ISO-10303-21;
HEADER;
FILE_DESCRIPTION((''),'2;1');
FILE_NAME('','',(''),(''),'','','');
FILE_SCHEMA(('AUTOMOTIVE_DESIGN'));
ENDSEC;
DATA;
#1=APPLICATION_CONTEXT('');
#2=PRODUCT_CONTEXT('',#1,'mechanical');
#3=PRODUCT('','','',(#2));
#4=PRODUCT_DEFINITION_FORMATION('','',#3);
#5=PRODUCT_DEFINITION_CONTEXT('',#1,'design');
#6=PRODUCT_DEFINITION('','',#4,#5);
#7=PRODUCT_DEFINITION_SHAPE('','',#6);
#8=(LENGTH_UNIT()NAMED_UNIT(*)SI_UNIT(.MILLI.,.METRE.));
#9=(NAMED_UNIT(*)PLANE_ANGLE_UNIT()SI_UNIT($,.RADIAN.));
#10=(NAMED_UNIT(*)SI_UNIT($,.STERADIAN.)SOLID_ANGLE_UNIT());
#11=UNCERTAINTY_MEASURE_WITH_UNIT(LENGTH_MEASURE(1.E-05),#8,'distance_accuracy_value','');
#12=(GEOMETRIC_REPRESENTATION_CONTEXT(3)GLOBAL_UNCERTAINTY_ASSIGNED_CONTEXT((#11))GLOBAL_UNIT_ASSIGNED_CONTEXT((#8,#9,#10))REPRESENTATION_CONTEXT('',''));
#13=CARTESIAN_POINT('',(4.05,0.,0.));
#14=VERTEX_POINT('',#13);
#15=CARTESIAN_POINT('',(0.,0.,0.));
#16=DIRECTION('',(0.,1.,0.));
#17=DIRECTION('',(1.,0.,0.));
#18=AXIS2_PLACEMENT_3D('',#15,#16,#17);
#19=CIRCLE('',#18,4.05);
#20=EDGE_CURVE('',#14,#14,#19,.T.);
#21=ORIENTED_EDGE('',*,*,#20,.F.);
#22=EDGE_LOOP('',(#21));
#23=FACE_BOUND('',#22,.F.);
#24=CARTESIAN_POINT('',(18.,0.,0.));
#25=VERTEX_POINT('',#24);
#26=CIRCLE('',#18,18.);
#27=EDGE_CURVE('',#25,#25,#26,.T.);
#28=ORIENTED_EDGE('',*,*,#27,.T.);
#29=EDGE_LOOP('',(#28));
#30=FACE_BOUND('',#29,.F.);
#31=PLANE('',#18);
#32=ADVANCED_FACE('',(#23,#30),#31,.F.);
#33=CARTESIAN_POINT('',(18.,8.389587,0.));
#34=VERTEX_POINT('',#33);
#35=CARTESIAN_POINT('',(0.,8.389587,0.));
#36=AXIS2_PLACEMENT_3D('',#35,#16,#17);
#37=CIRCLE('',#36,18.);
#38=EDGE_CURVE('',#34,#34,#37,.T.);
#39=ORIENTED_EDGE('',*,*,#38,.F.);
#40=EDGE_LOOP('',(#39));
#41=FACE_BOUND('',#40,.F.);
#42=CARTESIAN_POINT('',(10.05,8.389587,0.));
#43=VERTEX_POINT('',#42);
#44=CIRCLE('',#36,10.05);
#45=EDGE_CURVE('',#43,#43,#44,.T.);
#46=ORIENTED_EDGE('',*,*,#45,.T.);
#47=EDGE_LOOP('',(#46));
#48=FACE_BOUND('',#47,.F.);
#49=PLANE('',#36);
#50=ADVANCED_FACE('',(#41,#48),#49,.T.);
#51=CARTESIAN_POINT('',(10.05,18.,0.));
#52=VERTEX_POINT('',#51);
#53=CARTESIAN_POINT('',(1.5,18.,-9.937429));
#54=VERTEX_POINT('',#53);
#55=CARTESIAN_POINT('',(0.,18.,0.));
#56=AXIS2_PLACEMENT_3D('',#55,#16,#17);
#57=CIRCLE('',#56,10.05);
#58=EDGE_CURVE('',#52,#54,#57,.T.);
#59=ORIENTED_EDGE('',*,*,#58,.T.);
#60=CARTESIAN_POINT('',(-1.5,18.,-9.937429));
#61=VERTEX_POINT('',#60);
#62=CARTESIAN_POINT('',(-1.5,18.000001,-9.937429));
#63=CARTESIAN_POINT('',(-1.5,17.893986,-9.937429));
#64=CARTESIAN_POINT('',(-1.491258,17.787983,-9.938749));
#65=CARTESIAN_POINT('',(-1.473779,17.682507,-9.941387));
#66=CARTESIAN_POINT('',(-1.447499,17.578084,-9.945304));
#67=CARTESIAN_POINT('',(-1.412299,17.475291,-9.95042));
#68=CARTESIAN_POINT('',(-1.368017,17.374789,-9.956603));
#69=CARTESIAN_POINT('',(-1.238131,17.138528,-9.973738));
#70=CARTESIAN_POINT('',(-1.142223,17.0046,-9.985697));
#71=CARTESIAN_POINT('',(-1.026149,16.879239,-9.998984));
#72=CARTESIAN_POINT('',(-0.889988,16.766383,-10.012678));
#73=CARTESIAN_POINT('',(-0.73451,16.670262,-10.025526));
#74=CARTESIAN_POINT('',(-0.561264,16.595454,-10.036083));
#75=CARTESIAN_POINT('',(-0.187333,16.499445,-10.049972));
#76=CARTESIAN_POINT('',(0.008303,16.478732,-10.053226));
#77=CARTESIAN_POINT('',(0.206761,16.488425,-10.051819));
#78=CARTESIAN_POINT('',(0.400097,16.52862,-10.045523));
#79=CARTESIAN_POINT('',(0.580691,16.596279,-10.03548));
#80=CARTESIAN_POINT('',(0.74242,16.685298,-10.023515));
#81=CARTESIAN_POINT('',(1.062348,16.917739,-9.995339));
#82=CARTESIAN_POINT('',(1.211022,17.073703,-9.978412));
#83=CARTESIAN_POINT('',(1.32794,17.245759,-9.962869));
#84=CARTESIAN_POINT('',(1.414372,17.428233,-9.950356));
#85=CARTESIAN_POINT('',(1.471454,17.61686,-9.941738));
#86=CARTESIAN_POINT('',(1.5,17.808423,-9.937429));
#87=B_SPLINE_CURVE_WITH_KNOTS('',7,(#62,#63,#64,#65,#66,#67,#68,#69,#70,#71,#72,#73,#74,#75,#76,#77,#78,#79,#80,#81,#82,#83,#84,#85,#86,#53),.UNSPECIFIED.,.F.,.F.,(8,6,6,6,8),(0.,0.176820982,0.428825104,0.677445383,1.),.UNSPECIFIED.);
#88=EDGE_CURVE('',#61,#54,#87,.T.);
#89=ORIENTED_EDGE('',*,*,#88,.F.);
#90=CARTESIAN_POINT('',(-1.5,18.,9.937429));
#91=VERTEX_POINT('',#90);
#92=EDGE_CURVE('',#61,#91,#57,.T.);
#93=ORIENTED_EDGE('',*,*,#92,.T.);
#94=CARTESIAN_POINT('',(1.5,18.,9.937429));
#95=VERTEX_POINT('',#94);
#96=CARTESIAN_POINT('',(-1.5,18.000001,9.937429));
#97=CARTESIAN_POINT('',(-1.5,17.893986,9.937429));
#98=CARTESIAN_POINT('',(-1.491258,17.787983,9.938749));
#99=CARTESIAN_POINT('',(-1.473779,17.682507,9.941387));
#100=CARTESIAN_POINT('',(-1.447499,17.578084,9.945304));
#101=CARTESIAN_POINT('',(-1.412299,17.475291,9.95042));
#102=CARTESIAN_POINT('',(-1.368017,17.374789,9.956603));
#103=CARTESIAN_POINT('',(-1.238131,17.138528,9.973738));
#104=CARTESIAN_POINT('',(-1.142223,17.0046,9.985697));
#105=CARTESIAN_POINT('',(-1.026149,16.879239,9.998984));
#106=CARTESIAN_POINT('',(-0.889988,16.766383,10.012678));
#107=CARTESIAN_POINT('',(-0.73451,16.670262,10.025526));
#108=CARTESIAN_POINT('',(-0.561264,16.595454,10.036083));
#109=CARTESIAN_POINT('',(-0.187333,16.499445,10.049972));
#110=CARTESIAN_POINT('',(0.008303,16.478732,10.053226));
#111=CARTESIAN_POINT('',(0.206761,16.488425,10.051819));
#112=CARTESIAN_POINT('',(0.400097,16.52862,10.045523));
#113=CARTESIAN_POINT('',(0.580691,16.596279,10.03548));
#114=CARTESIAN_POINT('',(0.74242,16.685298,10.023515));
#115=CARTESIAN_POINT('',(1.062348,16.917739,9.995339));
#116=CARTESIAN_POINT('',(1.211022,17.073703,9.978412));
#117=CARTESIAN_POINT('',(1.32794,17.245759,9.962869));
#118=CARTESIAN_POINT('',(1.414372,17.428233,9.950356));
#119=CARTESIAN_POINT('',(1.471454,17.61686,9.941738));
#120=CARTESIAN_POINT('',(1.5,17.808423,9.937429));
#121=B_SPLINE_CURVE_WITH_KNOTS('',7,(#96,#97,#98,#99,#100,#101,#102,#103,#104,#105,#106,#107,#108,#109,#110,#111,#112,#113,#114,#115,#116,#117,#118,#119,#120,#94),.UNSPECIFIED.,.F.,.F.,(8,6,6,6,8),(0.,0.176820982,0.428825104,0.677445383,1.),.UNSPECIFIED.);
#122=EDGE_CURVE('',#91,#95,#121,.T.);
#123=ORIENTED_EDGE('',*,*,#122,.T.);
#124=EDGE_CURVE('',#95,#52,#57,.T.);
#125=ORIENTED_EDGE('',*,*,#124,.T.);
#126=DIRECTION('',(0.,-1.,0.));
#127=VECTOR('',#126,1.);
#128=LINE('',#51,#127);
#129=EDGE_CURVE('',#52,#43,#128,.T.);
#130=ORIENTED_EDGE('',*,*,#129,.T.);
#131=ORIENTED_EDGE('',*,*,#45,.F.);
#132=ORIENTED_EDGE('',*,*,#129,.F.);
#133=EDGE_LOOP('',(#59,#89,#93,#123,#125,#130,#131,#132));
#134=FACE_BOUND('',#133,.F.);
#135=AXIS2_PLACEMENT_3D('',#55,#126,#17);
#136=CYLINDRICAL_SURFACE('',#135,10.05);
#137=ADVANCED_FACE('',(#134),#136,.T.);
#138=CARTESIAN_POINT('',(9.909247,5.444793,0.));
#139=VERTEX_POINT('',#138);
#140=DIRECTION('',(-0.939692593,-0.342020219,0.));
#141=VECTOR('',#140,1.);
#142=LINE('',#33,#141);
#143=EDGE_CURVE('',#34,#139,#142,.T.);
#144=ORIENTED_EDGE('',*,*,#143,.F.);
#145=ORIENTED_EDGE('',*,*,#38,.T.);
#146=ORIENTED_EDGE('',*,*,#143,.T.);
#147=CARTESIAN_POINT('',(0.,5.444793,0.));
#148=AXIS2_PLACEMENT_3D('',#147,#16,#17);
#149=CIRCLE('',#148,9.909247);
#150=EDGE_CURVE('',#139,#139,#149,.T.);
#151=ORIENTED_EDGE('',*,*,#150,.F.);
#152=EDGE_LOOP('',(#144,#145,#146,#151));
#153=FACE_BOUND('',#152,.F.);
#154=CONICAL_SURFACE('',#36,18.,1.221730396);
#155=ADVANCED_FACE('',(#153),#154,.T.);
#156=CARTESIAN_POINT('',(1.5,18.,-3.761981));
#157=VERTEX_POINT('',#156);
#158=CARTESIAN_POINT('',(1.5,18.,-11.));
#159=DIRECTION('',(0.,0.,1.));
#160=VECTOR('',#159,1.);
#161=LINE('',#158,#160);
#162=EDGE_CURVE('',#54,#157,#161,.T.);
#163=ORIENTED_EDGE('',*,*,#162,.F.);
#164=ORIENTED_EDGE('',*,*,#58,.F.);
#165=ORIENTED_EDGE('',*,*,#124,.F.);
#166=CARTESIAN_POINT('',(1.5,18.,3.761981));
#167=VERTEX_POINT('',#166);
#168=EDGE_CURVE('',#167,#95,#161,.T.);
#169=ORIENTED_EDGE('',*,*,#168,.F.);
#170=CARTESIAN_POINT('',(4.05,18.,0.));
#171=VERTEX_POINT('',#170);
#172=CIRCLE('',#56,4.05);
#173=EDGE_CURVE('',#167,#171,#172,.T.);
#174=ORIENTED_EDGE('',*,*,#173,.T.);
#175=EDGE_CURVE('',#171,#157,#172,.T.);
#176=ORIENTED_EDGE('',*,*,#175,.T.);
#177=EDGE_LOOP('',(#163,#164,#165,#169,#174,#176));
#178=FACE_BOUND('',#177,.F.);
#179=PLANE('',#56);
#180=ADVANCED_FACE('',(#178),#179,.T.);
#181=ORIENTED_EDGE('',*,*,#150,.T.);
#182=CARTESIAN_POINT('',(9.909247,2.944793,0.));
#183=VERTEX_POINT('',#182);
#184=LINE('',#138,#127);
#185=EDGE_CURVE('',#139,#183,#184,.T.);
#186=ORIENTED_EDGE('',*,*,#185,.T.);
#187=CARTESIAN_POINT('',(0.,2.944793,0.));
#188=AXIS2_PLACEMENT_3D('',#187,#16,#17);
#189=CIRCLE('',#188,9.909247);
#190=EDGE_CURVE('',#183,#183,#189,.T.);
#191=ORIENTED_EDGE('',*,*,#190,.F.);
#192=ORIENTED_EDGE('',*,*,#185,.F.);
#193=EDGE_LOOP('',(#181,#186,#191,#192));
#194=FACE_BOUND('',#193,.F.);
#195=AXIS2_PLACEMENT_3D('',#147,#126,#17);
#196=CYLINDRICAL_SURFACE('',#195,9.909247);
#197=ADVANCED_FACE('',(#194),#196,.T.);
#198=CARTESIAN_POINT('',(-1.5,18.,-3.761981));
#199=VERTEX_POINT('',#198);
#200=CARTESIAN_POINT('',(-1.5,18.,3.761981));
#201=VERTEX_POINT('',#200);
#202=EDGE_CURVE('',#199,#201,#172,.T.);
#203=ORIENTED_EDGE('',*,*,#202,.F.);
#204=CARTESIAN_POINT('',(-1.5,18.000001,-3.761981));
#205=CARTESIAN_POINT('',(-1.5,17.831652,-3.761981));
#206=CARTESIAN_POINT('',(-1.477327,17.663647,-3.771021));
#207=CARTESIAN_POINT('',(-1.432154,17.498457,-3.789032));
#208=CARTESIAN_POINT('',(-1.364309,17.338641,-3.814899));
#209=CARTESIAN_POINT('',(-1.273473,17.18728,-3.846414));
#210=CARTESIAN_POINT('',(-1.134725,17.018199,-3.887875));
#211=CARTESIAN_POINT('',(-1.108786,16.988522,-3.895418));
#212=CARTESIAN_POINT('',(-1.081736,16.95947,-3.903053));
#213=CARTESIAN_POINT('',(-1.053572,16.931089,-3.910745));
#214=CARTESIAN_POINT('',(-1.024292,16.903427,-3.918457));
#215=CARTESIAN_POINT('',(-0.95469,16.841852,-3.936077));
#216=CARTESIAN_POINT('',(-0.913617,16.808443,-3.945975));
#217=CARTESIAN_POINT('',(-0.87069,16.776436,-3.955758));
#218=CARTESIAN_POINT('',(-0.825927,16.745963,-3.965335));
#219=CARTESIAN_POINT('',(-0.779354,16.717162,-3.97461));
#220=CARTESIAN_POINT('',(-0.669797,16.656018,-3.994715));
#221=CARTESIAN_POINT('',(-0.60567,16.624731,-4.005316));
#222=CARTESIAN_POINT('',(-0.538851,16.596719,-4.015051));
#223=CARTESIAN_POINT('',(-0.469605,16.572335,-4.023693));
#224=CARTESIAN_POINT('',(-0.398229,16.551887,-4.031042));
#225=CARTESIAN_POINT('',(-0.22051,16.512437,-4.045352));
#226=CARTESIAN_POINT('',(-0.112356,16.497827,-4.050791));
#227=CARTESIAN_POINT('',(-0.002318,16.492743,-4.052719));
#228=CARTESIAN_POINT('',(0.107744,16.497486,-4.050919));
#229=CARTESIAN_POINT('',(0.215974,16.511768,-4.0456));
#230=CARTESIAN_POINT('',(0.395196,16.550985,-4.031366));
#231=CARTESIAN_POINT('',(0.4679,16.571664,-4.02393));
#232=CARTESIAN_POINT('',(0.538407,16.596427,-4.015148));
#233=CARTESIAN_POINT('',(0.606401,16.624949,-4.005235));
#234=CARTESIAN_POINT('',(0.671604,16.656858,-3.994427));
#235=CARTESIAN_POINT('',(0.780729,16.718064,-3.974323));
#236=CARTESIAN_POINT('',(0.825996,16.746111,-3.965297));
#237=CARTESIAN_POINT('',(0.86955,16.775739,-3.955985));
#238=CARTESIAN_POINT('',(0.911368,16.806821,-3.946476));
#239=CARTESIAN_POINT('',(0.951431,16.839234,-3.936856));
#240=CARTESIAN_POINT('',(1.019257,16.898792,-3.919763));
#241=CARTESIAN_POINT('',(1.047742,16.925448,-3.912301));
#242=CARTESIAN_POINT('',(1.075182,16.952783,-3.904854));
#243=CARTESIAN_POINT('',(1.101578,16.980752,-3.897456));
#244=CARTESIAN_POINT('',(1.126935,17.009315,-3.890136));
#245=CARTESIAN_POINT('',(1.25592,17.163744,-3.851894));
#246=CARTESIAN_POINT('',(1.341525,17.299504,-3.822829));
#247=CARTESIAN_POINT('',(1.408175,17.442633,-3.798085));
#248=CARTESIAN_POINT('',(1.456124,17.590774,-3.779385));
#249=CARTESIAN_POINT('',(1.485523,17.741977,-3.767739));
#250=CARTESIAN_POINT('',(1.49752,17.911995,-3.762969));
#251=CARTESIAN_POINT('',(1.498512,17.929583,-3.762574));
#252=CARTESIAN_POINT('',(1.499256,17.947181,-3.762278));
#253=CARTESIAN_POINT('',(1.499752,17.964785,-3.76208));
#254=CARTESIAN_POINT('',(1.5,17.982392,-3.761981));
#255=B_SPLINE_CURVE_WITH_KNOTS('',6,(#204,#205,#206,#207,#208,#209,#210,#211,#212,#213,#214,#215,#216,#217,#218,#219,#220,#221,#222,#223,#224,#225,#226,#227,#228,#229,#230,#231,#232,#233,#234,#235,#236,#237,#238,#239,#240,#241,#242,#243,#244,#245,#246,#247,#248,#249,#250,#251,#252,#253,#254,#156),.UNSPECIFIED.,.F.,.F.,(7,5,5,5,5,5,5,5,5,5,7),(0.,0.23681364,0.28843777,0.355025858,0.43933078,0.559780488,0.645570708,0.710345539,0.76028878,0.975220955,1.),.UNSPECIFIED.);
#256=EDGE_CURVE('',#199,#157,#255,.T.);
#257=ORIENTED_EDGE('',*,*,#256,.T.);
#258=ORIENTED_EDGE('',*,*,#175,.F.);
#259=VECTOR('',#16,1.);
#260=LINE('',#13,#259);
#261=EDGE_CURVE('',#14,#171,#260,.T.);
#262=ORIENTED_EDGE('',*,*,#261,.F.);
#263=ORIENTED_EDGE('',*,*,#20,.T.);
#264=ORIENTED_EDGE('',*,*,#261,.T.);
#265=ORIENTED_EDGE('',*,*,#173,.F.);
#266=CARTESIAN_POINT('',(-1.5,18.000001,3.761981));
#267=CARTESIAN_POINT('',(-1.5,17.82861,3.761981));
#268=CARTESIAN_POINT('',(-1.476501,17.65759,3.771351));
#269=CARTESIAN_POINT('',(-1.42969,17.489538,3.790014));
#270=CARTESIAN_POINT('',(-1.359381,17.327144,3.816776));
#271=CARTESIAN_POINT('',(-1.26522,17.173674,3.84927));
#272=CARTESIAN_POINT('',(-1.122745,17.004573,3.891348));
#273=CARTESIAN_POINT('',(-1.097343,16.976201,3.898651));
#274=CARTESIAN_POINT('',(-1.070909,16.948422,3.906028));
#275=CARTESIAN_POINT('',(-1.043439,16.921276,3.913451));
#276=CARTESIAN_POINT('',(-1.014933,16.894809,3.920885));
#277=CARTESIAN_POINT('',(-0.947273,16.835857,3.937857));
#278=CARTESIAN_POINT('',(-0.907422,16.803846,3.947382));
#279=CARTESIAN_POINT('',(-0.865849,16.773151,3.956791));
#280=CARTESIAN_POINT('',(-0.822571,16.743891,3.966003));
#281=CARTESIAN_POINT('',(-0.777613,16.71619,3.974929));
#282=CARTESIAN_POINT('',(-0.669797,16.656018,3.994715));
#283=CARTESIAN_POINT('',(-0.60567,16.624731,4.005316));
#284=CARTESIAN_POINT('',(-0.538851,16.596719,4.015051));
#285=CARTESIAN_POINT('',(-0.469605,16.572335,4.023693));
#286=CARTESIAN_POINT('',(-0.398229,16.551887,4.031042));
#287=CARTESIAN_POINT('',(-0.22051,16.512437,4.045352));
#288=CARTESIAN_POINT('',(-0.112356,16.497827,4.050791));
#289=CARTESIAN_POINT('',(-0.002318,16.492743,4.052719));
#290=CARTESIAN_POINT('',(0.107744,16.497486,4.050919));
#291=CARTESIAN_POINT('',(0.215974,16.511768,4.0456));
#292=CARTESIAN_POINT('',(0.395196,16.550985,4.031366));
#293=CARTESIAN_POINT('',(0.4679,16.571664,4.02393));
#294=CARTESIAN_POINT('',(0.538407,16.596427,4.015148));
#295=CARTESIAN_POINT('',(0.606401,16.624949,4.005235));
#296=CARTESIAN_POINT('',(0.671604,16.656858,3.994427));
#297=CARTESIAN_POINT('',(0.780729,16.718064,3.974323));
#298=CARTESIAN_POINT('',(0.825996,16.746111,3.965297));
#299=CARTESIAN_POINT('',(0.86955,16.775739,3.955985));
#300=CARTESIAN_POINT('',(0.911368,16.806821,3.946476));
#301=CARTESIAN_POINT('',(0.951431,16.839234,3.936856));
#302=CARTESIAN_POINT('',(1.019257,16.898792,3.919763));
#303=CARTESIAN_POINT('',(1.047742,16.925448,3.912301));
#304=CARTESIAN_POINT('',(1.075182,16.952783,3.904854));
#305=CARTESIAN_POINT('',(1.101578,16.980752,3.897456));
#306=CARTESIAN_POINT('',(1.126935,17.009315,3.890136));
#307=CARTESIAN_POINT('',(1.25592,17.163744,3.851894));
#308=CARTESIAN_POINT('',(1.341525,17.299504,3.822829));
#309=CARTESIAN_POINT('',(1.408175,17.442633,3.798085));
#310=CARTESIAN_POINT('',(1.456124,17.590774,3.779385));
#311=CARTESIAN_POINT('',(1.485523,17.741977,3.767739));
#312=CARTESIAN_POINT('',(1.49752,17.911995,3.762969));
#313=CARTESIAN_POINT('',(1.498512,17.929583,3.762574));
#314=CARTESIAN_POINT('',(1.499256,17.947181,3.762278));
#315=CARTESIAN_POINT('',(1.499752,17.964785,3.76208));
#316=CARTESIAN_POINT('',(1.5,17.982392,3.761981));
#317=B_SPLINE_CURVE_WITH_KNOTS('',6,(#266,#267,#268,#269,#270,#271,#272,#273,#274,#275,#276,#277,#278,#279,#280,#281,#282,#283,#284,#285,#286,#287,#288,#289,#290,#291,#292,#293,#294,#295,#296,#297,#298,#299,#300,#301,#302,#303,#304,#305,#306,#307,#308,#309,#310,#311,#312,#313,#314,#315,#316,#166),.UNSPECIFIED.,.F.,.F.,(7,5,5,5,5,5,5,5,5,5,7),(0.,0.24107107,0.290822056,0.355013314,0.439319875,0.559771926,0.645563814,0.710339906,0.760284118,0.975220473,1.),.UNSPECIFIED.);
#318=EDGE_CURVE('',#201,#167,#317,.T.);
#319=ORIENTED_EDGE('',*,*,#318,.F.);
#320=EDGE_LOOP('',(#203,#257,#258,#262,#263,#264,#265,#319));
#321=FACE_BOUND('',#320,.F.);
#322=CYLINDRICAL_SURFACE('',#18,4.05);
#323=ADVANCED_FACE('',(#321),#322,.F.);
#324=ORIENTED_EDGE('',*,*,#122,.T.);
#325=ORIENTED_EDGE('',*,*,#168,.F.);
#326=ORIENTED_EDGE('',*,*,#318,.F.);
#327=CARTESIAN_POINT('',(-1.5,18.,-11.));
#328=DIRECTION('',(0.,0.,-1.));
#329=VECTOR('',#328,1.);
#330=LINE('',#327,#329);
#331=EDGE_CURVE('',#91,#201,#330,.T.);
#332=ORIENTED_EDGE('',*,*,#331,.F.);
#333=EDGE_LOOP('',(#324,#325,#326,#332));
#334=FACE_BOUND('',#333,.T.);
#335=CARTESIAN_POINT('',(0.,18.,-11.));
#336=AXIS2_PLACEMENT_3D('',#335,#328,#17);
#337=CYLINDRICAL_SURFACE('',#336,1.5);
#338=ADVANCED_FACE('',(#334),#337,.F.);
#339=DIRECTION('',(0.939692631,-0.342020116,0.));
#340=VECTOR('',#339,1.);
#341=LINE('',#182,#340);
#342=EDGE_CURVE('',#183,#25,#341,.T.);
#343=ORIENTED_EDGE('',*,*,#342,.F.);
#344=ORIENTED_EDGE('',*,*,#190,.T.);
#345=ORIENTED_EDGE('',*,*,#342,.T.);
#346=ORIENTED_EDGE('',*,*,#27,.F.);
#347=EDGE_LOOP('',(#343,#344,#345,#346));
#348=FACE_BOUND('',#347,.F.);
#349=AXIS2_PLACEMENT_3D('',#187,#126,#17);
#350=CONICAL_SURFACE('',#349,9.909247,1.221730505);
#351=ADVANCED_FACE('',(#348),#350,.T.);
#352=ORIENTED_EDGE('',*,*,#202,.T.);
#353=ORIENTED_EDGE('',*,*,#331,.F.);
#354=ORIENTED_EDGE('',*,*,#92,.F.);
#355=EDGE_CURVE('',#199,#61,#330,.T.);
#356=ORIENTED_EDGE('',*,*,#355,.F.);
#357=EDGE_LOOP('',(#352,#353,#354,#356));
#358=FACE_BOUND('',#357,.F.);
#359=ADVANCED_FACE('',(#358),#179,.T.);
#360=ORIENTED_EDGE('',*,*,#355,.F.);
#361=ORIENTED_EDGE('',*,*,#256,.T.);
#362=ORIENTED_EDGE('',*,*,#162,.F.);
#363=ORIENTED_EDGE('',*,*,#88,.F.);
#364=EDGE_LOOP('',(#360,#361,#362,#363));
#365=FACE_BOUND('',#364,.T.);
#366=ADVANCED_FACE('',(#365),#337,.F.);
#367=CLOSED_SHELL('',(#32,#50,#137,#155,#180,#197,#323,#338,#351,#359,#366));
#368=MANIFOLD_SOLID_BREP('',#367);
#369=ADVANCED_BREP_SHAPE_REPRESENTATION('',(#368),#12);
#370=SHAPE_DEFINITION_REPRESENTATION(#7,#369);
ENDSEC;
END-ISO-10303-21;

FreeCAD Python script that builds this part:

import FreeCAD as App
import Part
import Sketcher
Q = App.Units.Quantity


def add_polygon(sketch, points):
    """Adds a closed chain of lines whose ends are joined by coincident constraints."""
    first, n = sketch.GeometryCount, len(points)
    for a, b in zip(points, points[1:] + points[:1]):
        sketch.addGeometry(Part.LineSegment(App.Vector(*a, 0), App.Vector(*b, 0)), False)
    for i in range(n):
        sketch.addConstraint(Sketcher.Constraint("Coincident", first + i, 2, first + (i + 1) % n, 1))

doc = App.newDocument("Part")
body = doc.addObject("PartDesign::Body", "Body")

# Sketch on XY plane
sketch1 = body.newObject("Sketcher::SketchObject", "Sketch")
sketch1.AttachmentSupport = (doc.getObject("XY_Plane"), [""])
sketch1.MapMode = "FlatFace"
sketch1.AttachmentOffset = App.Placement(App.Vector(0, 0, -11), App.Rotation())
sketch1.addGeometry(Part.Circle(App.Vector(0, 18, 0), App.Vector(0, 0, 1), 1.5), False)
sketch1.addConstraint(Sketcher.Constraint("PointOnObject", 0, 3, -2))
sketch1.addConstraint(Sketcher.Constraint("Diameter", 0, 3.0))
sketch1.addConstraint(Sketcher.Constraint("DistanceY", -1, 1, 0, 3, 18.0))
pad1 = body.newObject("PartDesign::Pad", "Pad")
pad1.Profile = sketch1
pad1.Length = 22
body2 = doc.addObject("PartDesign::Body", "Body001")

# Sketch on XY plane
sketch2 = body2.newObject("Sketcher::SketchObject", "Sketch001")
sketch2.AttachmentSupport = (doc.getObject("XY_Plane001"), [""])
sketch2.MapMode = "FlatFace"
add_polygon(sketch2, [(4.05, 18), (4.05, 0), (18, 0), (9.909247, 2.944793), (9.909247, 5.444793), (18, 8.389587), (10.05, 8.389587), (10.05, 18)])  # lines 0-7
sketch2.addConstraint(Sketcher.Constraint("Vertical", 0))
sketch2.addConstraint(Sketcher.Constraint("Horizontal", 1))
sketch2.addConstraint(Sketcher.Constraint("Vertical", 3))
sketch2.addConstraint(Sketcher.Constraint("Horizontal", 5))
sketch2.addConstraint(Sketcher.Constraint("Vertical", 6))
sketch2.addConstraint(Sketcher.Constraint("Horizontal", 7))
sketch2.addConstraint(Sketcher.Constraint("PointOnObject", 0, 2, -1))
sketch2.addConstraint(Sketcher.Constraint("Vertical", 1, 2, 4, 2))
sketch2.addConstraint(Sketcher.Constraint("Equal", 2, 4))
sketch2.addConstraint(Sketcher.Constraint("DistanceX", 7, 2, 7, 1, 6.0))
sketch2.addConstraint(Sketcher.Constraint("DistanceY", 0, 2, 0, 1, 18.0))
sketch2.addConstraint(Sketcher.Constraint("Angle", 2, Q("160.000002 deg")))
sketch2.addConstraint(Sketcher.Constraint("DistanceY", 3, 1, 3, 2, 2.5))
sketch2.addConstraint(Sketcher.Constraint("DistanceX", -1, 1, 1, 2, 18.0))
sketch2.addConstraint(Sketcher.Constraint("DistanceX", 1, 1, 1, 2, 13.95))
sketch2.addConstraint(Sketcher.Constraint("Distance", 2, 8.609999))
revolution = body2.newObject("PartDesign::Revolution", "Revolution")
revolution.Profile = sketch2
revolution.ReferenceAxis = (sketch2, ["V_Axis"])
revolution.Angle = 360
doc.recompute()

boolean = body2.newObject("PartDesign::Boolean", "Boolean")
boolean.Type = "Cut"
boolean.addObjects([body])

doc.recompute()
